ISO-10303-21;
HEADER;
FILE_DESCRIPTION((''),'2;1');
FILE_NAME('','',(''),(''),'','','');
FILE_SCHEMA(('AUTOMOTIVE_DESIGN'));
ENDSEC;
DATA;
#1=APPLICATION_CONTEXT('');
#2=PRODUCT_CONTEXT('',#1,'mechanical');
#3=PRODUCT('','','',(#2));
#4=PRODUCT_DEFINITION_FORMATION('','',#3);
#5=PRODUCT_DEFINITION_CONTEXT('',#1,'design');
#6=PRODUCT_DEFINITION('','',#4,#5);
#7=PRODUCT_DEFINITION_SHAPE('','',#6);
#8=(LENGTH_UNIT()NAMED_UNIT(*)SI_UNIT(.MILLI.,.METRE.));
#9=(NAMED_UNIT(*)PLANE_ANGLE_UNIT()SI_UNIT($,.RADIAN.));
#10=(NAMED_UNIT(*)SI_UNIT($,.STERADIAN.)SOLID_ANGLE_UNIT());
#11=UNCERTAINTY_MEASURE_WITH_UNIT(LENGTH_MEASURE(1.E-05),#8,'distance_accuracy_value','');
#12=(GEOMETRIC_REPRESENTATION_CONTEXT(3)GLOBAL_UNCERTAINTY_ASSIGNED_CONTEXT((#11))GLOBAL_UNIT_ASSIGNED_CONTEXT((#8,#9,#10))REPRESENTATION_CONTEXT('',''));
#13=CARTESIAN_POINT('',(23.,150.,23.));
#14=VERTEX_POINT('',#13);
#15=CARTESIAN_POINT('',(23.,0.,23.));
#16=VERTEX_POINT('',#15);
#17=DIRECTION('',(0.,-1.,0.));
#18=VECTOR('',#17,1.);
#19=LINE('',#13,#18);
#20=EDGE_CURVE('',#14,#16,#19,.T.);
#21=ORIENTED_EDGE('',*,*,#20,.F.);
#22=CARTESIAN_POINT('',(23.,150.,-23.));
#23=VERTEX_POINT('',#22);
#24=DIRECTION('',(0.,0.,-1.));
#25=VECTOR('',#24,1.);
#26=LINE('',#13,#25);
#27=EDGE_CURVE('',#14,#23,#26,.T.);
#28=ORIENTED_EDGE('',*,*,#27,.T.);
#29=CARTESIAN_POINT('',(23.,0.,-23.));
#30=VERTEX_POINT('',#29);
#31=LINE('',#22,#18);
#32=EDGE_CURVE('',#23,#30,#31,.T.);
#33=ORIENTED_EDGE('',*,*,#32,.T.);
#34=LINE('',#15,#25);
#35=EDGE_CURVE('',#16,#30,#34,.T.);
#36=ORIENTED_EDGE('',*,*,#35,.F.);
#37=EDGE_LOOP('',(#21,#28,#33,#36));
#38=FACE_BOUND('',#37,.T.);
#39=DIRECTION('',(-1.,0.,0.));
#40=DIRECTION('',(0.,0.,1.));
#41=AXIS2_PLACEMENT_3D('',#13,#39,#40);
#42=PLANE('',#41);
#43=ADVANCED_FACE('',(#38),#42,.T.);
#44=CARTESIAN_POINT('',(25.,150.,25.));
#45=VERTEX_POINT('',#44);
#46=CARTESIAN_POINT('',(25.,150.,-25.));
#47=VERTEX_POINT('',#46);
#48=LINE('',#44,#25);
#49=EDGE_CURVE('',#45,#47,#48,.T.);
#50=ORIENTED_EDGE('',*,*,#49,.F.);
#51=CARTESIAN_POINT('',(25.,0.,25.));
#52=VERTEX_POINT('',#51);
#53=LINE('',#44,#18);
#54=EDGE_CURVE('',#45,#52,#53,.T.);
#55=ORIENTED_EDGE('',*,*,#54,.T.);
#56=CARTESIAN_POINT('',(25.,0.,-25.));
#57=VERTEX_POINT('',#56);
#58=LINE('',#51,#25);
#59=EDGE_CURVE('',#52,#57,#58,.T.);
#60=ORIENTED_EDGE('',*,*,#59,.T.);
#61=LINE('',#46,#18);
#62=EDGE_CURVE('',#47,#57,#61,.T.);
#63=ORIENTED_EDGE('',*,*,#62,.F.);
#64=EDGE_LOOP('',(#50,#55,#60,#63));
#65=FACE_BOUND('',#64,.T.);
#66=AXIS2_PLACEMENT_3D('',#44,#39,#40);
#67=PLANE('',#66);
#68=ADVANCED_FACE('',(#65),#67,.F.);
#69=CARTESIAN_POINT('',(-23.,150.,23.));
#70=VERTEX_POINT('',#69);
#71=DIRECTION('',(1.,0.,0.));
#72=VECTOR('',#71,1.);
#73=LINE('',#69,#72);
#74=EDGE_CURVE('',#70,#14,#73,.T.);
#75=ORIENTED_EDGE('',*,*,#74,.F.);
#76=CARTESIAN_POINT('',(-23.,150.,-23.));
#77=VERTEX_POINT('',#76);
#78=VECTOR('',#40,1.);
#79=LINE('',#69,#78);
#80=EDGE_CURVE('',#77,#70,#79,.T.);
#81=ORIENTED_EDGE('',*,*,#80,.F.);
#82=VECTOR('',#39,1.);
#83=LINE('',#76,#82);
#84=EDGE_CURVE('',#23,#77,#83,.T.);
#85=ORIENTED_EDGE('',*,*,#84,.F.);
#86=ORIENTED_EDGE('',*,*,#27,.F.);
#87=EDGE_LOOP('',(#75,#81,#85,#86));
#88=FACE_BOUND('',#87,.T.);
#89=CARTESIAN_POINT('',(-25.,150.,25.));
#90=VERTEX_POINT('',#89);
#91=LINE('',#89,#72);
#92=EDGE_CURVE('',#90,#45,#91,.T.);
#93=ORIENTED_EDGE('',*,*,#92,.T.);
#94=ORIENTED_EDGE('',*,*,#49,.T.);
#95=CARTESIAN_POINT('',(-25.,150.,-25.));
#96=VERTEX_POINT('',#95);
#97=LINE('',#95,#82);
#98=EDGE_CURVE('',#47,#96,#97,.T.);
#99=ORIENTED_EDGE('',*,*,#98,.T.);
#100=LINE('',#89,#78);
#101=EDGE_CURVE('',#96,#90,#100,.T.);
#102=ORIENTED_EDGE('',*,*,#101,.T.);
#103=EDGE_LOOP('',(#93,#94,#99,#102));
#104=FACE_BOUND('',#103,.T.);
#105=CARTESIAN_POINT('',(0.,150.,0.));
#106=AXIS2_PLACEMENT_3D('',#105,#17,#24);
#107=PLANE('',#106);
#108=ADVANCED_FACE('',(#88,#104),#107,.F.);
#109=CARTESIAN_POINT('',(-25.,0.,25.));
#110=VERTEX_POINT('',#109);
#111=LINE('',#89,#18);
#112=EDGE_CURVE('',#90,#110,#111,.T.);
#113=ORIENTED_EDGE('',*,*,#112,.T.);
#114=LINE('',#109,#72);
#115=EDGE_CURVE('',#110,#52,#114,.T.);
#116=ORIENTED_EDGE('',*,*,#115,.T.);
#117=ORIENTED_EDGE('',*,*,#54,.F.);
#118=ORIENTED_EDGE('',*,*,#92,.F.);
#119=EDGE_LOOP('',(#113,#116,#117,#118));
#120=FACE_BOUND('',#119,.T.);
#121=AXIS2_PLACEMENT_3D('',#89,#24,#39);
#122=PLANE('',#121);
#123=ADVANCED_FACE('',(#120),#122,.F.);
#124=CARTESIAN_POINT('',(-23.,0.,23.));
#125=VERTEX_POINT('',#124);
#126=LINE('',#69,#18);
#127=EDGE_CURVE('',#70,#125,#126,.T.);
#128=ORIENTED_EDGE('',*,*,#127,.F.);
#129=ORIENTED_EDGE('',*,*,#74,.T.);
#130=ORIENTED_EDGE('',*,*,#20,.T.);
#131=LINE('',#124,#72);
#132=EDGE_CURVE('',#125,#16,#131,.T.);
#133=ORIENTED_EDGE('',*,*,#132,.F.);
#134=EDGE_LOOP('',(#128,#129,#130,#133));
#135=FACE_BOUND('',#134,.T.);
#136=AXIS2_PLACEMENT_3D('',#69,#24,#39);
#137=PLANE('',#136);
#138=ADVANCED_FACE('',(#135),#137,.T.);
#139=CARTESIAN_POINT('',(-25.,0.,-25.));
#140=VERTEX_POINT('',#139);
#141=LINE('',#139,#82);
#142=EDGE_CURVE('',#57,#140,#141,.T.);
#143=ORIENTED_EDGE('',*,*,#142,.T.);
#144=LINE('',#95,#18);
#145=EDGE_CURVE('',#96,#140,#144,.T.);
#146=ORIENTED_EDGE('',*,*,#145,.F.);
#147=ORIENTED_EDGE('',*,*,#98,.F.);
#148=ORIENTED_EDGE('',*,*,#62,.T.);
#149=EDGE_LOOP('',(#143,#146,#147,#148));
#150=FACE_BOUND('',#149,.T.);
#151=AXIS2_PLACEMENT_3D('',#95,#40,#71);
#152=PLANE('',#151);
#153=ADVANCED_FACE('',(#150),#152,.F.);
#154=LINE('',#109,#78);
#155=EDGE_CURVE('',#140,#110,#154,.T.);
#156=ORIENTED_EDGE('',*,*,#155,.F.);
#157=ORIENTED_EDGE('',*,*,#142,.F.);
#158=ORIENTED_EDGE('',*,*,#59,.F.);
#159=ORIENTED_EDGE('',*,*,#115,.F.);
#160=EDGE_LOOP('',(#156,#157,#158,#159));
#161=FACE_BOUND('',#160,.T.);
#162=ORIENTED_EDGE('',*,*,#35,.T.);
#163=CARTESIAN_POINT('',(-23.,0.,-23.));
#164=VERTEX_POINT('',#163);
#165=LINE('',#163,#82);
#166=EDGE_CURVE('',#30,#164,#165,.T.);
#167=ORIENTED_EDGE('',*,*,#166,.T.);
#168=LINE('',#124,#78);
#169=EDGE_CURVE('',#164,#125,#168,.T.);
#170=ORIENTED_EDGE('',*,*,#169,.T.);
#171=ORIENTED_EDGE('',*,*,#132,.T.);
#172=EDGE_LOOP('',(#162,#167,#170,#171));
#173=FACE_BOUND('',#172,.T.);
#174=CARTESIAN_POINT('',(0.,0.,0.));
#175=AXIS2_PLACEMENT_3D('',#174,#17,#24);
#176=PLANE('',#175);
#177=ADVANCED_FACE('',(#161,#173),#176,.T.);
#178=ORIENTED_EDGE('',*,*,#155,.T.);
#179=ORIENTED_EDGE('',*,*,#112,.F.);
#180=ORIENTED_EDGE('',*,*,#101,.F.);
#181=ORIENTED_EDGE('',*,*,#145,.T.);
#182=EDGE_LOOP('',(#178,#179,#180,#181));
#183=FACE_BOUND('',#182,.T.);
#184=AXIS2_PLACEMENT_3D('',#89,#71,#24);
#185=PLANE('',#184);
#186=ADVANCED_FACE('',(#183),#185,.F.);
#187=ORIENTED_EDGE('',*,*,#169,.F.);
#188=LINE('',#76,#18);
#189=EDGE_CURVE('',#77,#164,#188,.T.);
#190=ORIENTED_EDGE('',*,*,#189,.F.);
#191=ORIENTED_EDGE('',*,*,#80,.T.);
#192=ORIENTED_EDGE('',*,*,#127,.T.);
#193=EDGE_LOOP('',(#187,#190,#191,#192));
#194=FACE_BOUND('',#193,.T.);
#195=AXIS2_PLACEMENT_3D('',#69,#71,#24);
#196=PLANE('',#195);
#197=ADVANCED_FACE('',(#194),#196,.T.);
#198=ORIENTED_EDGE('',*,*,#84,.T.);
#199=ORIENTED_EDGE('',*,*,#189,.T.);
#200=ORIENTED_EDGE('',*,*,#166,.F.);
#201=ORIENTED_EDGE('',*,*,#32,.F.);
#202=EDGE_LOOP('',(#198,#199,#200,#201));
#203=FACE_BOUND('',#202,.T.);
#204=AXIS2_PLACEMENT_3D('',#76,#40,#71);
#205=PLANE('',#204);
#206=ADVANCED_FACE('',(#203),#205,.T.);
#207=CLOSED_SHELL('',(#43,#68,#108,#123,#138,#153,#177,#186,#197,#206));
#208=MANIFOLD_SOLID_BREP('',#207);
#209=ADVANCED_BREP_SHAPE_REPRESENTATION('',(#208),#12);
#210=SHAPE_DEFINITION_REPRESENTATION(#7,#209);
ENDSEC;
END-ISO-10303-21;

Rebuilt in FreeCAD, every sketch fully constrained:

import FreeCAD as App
import Part
import Sketcher
Q = App.Units.Quantity

doc = App.newDocument("Part")
params = doc.addObject("Spreadsheet::Sheet", "Params")
for row, (alias, value) in enumerate([
    ("sketch1_width", "50 mm"),
    ("sketch1_width2", "46 mm"),
    ("pad1_length", "150 mm"),
], start=1):
    params.set(f"A{row}", alias)
    params.set(f"B{row}", "=" + value)
    params.setAlias(f"B{row}", alias)

body = doc.addObject("PartDesign::Body", "Body")

# Sketch on XZ plane
sketch1 = body.newObject("Sketcher::SketchObject", "Sketch")
sketch1.AttachmentSupport = (doc.getObject("XZ_Plane"), [""])
sketch1.MapMode = "FlatFace"
sketch1.addGeometry([
    Part.LineSegment(App.Vector(-25, -25, 0), App.Vector(-25, 25, 0)),  # 0
    Part.LineSegment(App.Vector(-25, 25, 0), App.Vector(25, 25, 0)),  # 1
    Part.LineSegment(App.Vector(25, 25, 0), App.Vector(25, -25, 0)),  # 2
    Part.LineSegment(App.Vector(25, -25, 0), App.Vector(-25, -25, 0)),  # 3
    Part.LineSegment(App.Vector(23, 23, 0), App.Vector(-23, 23, 0)),  # 4
    Part.LineSegment(App.Vector(-23, 23, 0), App.Vector(-23, -23, 0)),  # 5
    Part.LineSegment(App.Vector(-23, -23, 0), App.Vector(23, -23, 0)),  # 6
    Part.LineSegment(App.Vector(23, -23, 0), App.Vector(23, 23, 0)),  # 7
], False)
sketch1.addConstraint([
    Sketcher.Constraint("Coincident", 0, 2, 1, 1),
    Sketcher.Constraint("Coincident", 1, 2, 2, 1),
    Sketcher.Constraint("Coincident", 2, 2, 3, 1),
    Sketcher.Constraint("Coincident", 3, 2, 0, 1),
    Sketcher.Constraint("Coincident", 4, 2, 5, 1),
    Sketcher.Constraint("Coincident", 5, 2, 6, 1),
    Sketcher.Constraint("Coincident", 6, 2, 7, 1),
    Sketcher.Constraint("Coincident", 7, 2, 4, 1),
    Sketcher.Constraint("Vertical", 0),
    Sketcher.Constraint("Horizontal", 1),
    Sketcher.Constraint("Vertical", 2),
    Sketcher.Constraint("Horizontal", 3),
    Sketcher.Constraint("Horizontal", 4),
    Sketcher.Constraint("Vertical", 5),
    Sketcher.Constraint("Horizontal", 6),
    Sketcher.Constraint("Vertical", 7),
    Sketcher.Constraint("Symmetric", 0, 2, 2, 2, -1, 1),
    Sketcher.Constraint("Symmetric", 4, 2, 6, 2, -1, 1),
    Sketcher.Constraint("Equal", 3, 0),
    Sketcher.Constraint("Equal", 6, 5),
    Sketcher.Constraint("DistanceX", 1, 1, 1, 2, Q("50 mm")),
    Sketcher.Constraint("DistanceX", 4, 2, 4, 1, Q("46 mm")),
])
sketch1.setExpression("Constraints[20]", "Params.sketch1_width")
sketch1.setExpression("Constraints[21]", "Params.sketch1_width2")
pad1 = body.newObject("PartDesign::Pad", "Pad")
pad1.Profile = sketch1
pad1.setExpression("Length", "Params.pad1_length")
pad1.Reversed = True

doc.recompute()
